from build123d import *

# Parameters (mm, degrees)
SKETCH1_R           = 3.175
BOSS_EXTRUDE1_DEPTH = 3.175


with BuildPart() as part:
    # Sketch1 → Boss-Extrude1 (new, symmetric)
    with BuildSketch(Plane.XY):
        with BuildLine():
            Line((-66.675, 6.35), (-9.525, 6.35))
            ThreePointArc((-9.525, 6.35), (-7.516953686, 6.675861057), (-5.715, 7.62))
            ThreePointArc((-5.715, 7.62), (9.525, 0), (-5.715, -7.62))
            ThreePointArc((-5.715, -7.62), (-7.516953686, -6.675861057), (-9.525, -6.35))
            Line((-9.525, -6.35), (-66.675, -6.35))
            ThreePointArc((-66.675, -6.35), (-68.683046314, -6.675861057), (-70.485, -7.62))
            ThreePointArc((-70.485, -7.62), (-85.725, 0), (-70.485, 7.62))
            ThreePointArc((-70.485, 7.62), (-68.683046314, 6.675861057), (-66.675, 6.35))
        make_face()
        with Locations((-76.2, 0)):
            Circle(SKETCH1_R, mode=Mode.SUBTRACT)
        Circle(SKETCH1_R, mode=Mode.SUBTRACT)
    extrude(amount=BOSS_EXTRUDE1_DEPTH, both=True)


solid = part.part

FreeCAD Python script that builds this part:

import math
import FreeCAD as App
import Part
import Sketcher
from FreeCAD import Vector
Q = App.Units.Quantity

doc = App.newDocument("Part")
body = doc.addObject("PartDesign::Body", "Body")

sketch1 = body.newObject("Sketcher::SketchObject", "Sketch")
sketch1.AttachmentSupport = (doc.getObject("XY_Plane"), [""])
sketch1.MapMode = "FlatFace"
sketch1.addGeometry(Part.LineSegment(Vector(-9.525, 6.35, 0), Vector(-66.675, 6.35, 0)), False)
sketch1.addGeometry(Part.ArcOfCircle(Part.Circle(Vector(-66.675, 12.7, 0), Vector(0, 0, 1), 6.35), math.radians(-126.869898), math.radians(-90)), False)
sketch1.addGeometry(Part.ArcOfCircle(Part.Circle(Vector(-76.2, 0, 0), Vector(0, 0, 1), 9.525), math.radians(53.130102), math.radians(306.869898)), False)
sketch1.addGeometry(Part.ArcOfCircle(Part.Circle(Vector(-66.675, -12.7, 0), Vector(0, 0, 1), 6.35), math.radians(90), math.radians(126.869898)), False)
sketch1.addGeometry(Part.LineSegment(Vector(-66.675, -6.35, 0), Vector(-9.525, -6.35, 0)), False)
sketch1.addGeometry(Part.ArcOfCircle(Part.Circle(Vector(-9.525, -12.7, 0), Vector(0, 0, 1), 6.35), math.radians(53.130102), math.radians(90)), False)
sketch1.addGeometry(Part.ArcOfCircle(Part.Circle(Vector(0, 0, 0), Vector(0, 0, 1), 9.525), math.radians(-126.869898), math.radians(126.869898)), False)
sketch1.addGeometry(Part.ArcOfCircle(Part.Circle(Vector(-9.525, 12.7, 0), Vector(0, 0, 1), 6.35), math.radians(-90), math.radians(-53.130102)), False)
sketch1.addGeometry(Part.Circle(Vector(0, 0, 0), Vector(0, 0, 1), 3.175), False)
sketch1.addGeometry(Part.Circle(Vector(-76.2, 0, 0), Vector(0, 0, 1), 3.175), False)
sketch1.addConstraint(Sketcher.Constraint("Tangent", 0, 2, 1, 2))
sketch1.addConstraint(Sketcher.Constraint("Tangent", 1, 1, 2, 1))
sketch1.addConstraint(Sketcher.Constraint("Tangent", 2, 2, 3, 2))
sketch1.addConstraint(Sketcher.Constraint("Tangent", 3, 1, 4, 1))
sketch1.addConstraint(Sketcher.Constraint("Tangent", 4, 2, 5, 2))
sketch1.addConstraint(Sketcher.Constraint("Tangent", 5, 1, 6, 1))
sketch1.addConstraint(Sketcher.Constraint("Tangent", 6, 2, 7, 2))
sketch1.addConstraint(Sketcher.Constraint("Tangent", 7, 1, 0, 1))
sketch1.addConstraint(Sketcher.Constraint("Horizontal", 0))
sketch1.addConstraint(Sketcher.Constraint("Horizontal", 4))
sketch1.addConstraint(Sketcher.Constraint("Coincident", 6, 3, -1, 1))
sketch1.addConstraint(Sketcher.Constraint("Coincident", 8, 3, -1, 1))
sketch1.addConstraint(Sketcher.Constraint("Coincident", 9, 3, 2, 3))
sketch1.addConstraint(Sketcher.Constraint("Equal", 1, 3))
sketch1.addConstraint(Sketcher.Constraint("Equal", 3, 5))
sketch1.addConstraint(Sketcher.Constraint("Equal", 2, 6))
sketch1.addConstraint(Sketcher.Constraint("Equal", 5, 7))
sketch1.addConstraint(Sketcher.Constraint("Equal", 8, 9))
sketch1.addConstraint(Sketcher.Constraint("Symmetric", 1, 3, 3, 3, -1))
sketch1.addConstraint(Sketcher.Constraint("Diameter", 8, Q("0.25 in")))
sketch1.addConstraint(Sketcher.Constraint("Radius", 1, Q("0.25 in")))
sketch1.addConstraint(Sketcher.Constraint("DistanceX", 2, 3, -1, 1, Q("3 in")))
sketch1.addConstraint(Sketcher.Constraint("Radius", 2, Q("0.375 in")))
sketch1.addConstraint(Sketcher.Constraint("DistanceY", 3, 3, 1, 3, Q("1 in")))
pad1 = body.newObject("PartDesign::Pad", "Pad")
pad1.Profile = sketch1
pad1.Length = Q("0.25 in")
pad1.Midplane = True

doc.recompute()
